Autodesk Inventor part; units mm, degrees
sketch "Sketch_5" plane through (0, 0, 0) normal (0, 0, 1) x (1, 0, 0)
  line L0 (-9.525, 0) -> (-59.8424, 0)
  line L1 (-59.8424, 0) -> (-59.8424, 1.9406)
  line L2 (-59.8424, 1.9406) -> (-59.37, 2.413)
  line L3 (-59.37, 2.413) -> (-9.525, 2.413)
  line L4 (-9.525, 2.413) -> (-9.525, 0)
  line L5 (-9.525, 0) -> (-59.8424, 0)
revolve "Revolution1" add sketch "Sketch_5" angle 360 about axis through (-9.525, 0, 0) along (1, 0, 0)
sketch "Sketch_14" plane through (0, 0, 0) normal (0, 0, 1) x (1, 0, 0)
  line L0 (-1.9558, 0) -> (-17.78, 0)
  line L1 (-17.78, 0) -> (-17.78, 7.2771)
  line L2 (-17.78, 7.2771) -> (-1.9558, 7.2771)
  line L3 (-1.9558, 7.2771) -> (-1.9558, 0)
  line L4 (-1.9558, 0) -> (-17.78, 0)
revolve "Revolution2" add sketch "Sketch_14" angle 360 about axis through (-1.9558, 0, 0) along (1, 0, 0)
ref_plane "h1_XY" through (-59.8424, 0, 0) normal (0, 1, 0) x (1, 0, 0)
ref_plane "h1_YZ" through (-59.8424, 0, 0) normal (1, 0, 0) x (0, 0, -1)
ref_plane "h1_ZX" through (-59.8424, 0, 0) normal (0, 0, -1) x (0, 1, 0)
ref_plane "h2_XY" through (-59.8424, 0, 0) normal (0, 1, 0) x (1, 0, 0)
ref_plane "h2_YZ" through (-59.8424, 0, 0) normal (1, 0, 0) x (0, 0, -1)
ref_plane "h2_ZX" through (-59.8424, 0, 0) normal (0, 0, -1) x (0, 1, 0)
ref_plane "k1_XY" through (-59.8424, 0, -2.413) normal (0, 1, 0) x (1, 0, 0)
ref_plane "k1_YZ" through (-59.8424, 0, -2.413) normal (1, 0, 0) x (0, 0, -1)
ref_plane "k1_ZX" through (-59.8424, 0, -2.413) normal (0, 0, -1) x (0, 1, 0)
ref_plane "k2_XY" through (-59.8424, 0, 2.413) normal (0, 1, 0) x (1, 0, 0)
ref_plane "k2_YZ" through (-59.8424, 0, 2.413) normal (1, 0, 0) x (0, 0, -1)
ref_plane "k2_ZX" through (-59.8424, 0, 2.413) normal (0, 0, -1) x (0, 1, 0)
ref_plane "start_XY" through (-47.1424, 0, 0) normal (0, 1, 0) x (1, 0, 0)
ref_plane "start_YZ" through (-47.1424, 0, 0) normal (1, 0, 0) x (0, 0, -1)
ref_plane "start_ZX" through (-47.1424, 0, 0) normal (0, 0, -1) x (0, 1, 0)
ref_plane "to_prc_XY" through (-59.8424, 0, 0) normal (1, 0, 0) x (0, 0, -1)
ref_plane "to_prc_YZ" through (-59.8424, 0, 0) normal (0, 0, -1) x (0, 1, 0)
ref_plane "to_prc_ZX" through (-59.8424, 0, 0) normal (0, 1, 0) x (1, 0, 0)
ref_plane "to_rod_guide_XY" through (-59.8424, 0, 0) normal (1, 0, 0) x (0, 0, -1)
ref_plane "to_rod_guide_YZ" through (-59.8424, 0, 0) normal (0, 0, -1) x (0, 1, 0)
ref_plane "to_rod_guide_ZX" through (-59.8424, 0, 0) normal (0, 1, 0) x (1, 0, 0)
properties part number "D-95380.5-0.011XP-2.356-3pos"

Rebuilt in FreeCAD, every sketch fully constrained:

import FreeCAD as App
import Part
import Sketcher

V = App.Vector
Q = App.Units.Quantity


def add_polygon(sketch, points):
    """Adds a closed chain of lines whose ends are joined by coincident constraints."""
    first, n = sketch.GeometryCount, len(points)
    for a, b in zip(points, points[1:] + points[:1]):
        sketch.addGeometry(Part.LineSegment(App.Vector(*a, 0), App.Vector(*b, 0)), False)
    for i in range(n):
        sketch.addConstraint(Sketcher.Constraint("Coincident", first + i, 2, first + (i + 1) % n, 1))

doc = App.newDocument("Part")
body = doc.addObject("PartDesign::Body", "Body")

# Sketch on XY plane
sketch1 = body.newObject("Sketcher::SketchObject", "Sketch")
sketch1.AttachmentSupport = (doc.getObject("XY_Plane"), [""])
sketch1.MapMode = "FlatFace"
add_polygon(sketch1, [(-59.8424, 0), (-9.525, 0), (-9.525, 2.413), (-59.37, 2.413), (-59.8424, 1.9406)])  # lines 0-4
sketch1.addConstraint(Sketcher.Constraint("Horizontal", 0))
sketch1.addConstraint(Sketcher.Constraint("Vertical", 1))
sketch1.addConstraint(Sketcher.Constraint("Horizontal", 2))
sketch1.addConstraint(Sketcher.Constraint("Vertical", 4))
sketch1.addConstraint(Sketcher.Constraint("PointOnObject", 0, 2, -1))
sketch1.addConstraint(Sketcher.Constraint("Angle", 3, Q("-135 deg")))
sketch1.addConstraint(Sketcher.Constraint("DistanceX", 0, 1, 0, 2, Q("1.981 in")))
sketch1.addConstraint(Sketcher.Constraint("DistanceY", 1, 1, 1, 2, Q("0.095 in")))
sketch1.addConstraint(Sketcher.Constraint("DistanceX", 2, 2, 2, 1, Q("1.9624 in")))
sketch1.addConstraint(Sketcher.Constraint("DistanceX", 0, 2, -1, 1, Q("0.375 in")))
revolution = body.newObject("PartDesign::Revolution", "Revolution")
revolution.Profile = sketch1
revolution.ReferenceAxis = (sketch1, ["H_Axis"])
revolution.Angle = 360

# Sketch on XY plane
sketch2 = body.newObject("Sketcher::SketchObject", "Sketch001")
sketch2.AttachmentSupport = (doc.getObject("XY_Plane"), [""])
sketch2.MapMode = "FlatFace"
add_polygon(sketch2, [(-17.78, 0), (-1.9558, 0), (-1.9558, 7.2771), (-17.78, 7.2771)])  # lines 0-3
sketch2.addConstraint(Sketcher.Constraint("Horizontal", 0))
sketch2.addConstraint(Sketcher.Constraint("Vertical", 1))
sketch2.addConstraint(Sketcher.Constraint("Horizontal", 2))
sketch2.addConstraint(Sketcher.Constraint("Vertical", 3))
sketch2.addConstraint(Sketcher.Constraint("PointOnObject", 0, 2, -1))
sketch2.addConstraint(Sketcher.Constraint("DistanceX", 2, 2, -1, 1, Q("0.7 in")))
sketch2.addConstraint(Sketcher.Constraint("DistanceX", 0, 1, 0, 2, Q("0.623 in")))
sketch2.addConstraint(Sketcher.Constraint("DistanceY", 1, 1, 1, 2, Q("0.2865 in")))
revolution2 = body.newObject("PartDesign::Revolution", "Revolution001")
revolution2.Profile = sketch2
revolution2.ReferenceAxis = (sketch2, ["H_Axis"])
revolution2.Angle = 360

doc.recompute()
